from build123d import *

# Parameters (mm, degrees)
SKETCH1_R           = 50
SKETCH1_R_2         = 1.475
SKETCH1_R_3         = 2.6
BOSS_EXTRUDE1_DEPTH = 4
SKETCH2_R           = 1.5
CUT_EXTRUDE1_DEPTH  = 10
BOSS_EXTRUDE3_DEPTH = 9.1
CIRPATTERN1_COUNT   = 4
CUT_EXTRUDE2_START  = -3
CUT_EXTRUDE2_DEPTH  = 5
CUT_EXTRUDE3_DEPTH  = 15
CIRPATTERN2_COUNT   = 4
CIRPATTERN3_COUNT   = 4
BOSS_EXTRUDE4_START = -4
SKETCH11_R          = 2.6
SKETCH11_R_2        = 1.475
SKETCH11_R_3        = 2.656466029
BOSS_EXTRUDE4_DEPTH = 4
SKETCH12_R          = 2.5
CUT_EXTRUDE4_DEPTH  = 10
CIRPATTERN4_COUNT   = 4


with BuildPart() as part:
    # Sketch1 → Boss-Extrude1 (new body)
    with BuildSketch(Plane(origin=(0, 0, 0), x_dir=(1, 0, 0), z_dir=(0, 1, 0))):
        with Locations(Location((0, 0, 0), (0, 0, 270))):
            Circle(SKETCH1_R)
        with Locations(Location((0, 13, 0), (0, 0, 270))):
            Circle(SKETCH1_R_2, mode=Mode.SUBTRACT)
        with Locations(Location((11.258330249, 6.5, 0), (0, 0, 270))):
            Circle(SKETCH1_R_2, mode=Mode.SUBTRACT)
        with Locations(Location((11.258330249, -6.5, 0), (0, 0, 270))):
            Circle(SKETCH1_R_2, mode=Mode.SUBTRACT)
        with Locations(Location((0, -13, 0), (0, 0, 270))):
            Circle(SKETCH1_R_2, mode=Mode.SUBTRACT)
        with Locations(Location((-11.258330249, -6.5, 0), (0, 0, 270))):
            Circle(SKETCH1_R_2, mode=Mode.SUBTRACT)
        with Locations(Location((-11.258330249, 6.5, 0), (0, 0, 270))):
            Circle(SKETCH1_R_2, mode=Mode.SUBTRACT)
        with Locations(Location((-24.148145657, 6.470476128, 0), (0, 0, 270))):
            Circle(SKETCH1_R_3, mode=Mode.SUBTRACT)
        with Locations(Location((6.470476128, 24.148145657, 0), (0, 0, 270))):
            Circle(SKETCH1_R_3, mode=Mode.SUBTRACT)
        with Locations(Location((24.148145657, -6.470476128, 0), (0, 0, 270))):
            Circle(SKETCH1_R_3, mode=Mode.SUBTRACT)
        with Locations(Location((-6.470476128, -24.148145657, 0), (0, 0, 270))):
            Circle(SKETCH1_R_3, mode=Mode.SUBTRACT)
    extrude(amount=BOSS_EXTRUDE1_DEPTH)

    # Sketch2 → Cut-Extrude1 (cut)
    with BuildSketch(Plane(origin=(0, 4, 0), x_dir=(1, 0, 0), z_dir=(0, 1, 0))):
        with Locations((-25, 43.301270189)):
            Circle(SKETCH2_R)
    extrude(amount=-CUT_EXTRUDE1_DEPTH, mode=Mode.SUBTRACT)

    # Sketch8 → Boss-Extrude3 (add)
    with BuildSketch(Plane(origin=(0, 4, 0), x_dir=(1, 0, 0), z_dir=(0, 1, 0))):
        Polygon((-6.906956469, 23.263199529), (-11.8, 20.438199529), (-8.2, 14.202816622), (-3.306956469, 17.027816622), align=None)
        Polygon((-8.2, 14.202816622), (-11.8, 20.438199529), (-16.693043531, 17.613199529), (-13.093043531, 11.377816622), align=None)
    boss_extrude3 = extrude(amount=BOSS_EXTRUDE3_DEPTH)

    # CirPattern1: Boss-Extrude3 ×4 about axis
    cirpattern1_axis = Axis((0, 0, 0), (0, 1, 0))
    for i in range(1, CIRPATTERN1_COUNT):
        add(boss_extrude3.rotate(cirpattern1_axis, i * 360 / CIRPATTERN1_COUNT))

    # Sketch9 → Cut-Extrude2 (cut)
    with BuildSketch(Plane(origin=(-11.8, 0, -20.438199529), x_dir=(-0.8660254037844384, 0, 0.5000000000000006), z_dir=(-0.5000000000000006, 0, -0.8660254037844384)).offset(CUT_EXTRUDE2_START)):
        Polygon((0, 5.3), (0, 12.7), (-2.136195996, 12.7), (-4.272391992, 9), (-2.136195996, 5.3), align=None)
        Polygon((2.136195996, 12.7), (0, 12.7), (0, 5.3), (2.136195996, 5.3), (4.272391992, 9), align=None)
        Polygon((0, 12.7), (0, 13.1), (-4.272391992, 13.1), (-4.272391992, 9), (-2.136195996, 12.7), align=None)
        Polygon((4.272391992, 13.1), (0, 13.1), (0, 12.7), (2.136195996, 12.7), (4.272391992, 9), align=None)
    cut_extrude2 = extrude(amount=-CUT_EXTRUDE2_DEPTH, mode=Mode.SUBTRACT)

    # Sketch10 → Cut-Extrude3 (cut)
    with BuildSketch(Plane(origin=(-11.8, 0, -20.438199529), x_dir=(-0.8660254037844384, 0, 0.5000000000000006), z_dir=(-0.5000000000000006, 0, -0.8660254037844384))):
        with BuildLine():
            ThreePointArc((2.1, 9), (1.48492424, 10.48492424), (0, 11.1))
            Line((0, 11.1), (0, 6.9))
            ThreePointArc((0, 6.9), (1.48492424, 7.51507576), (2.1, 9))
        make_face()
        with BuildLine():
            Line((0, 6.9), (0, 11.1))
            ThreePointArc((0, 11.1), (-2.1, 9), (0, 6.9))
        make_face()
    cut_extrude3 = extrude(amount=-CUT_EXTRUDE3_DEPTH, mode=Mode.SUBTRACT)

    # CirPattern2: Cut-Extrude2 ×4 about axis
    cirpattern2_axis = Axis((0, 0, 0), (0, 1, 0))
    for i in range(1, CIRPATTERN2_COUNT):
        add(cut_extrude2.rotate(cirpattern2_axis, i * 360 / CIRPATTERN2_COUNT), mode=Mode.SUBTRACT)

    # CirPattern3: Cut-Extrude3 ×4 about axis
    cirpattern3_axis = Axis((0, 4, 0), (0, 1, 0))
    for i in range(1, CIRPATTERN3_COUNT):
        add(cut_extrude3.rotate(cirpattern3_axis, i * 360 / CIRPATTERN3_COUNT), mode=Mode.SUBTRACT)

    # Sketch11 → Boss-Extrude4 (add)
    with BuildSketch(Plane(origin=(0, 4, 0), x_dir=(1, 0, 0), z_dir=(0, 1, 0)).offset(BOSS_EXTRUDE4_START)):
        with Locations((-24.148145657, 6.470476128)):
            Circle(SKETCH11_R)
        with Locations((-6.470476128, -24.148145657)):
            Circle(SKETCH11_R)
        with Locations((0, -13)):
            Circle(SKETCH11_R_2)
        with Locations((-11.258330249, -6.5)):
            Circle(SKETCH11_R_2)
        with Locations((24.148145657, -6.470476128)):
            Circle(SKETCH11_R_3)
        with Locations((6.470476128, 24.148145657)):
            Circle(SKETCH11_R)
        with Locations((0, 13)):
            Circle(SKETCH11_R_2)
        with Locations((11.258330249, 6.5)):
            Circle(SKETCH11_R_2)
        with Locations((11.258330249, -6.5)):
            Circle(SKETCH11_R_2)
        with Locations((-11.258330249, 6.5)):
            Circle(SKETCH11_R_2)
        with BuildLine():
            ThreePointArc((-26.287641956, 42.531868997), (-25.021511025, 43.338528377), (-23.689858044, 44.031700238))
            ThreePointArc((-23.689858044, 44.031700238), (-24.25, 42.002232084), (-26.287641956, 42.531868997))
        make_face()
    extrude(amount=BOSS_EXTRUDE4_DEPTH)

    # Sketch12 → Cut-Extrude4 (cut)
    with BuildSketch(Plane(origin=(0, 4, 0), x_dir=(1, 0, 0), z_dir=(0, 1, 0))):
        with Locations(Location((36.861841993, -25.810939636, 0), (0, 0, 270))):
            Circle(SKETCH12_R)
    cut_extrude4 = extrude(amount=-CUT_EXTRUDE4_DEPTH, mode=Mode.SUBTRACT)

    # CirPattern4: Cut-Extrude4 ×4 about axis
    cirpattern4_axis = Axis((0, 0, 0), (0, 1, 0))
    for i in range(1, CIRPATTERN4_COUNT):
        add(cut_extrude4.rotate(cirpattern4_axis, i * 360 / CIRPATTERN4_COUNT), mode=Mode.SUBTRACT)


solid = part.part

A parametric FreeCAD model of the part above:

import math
import FreeCAD as App
import Part
import Sketcher
from FreeCAD import Vector
Q = App.Units.Quantity

doc = App.newDocument("Part")
body = doc.addObject("PartDesign::Body", "Body")

sketch1 = doc.addObject("Sketcher::SketchObject", "Sketch")
body.addObject(sketch1)
sketch1.AttachmentSupport = (doc.XZ_Plane, [""])
sketch1.MapMode = "FlatFace"
sketch1.addGeometry([
    Part.Circle(Vector(0, 0, 0), Vector(0, 0, 1), 50),
    Part.Circle(Vector(-24.148146, -6.470476, 0), Vector(0, 0, 1), 2.6),
    Part.Circle(Vector(-11.25833, -6.5, 0), Vector(0, 0, 1), 1.475),
    Part.Circle(Vector(0, -13, 0), Vector(0, 0, 1), 1.475),
    Part.Circle(Vector(-11.25833, 6.5, 0), Vector(0, 0, 1), 1.475),
    Part.Circle(Vector(-6.470476, 24.148146, 0), Vector(0, 0, 1), 2.6),
    Part.Circle(Vector(6.470476, -24.148146, 0), Vector(0, 0, 1), 2.6),
    Part.Circle(Vector(11.25833, -6.5, 0), Vector(0, 0, 1), 1.475),
    Part.Circle(Vector(0, 13, 0), Vector(0, 0, 1), 1.475),
    Part.Circle(Vector(11.25833, 6.5, 0), Vector(0, 0, 1), 1.475),
    Part.Circle(Vector(24.148146, 6.470476, 0), Vector(0, 0, 1), 2.6),
], False)
sketch1.addConstraint([
    Sketcher.Constraint("Coincident", 0, 3, -1, 1),
    Sketcher.Constraint("Equal", 2, 3),
    Sketcher.Constraint("Equal", 3, 4),
    Sketcher.Constraint("Equal", 1, 5),
    Sketcher.Constraint("Equal", 5, 6),
    Sketcher.Constraint("Equal", 4, 7),
    Sketcher.Constraint("Equal", 7, 8),
    Sketcher.Constraint("Equal", 8, 9),
    Sketcher.Constraint("Equal", 6, 10),
    Sketcher.Constraint("Symmetric", 5, 3, 6, 3, -1, 1),
    Sketcher.Constraint("Symmetric", 4, 3, 7, 3, -1, 1),
    Sketcher.Constraint("Symmetric", 3, 3, 8, 3, -1, 1),
    Sketcher.Constraint("Symmetric", 2, 3, 9, 3, -1, 1),
    Sketcher.Constraint("Symmetric", 1, 3, 10, 3, -1, 1),
    Sketcher.Constraint("Symmetric", 2, 3, 7, 3, -2),
    Sketcher.Constraint("PointOnObject", 3, 3, -2),
    Sketcher.Constraint("Diameter", 0, 100.0),
    Sketcher.Constraint("Diameter", 1, 5.2),
    Sketcher.Constraint("Diameter", 2, 2.95),
    Sketcher.Constraint("DistanceY", 3, 3, -1, 1, 13.0),
    Sketcher.Constraint("DistanceY", 2, 3, 4, 3, 13.0),
    Sketcher.Constraint("DistanceX", 2, 3, -1, 1, 11.25833),
    Sketcher.Constraint("DistanceX", 1, 3, 5, 3, 17.67767),
    Sketcher.Constraint("DistanceY", 1, 3, 5, 3, 30.618622),
    Sketcher.Constraint("DistanceX", 1, 3, 6, 3, 30.618622),
    Sketcher.Constraint("DistanceY", 6, 3, 1, 3, 17.67767),
])
pad1 = doc.addObject("PartDesign::Pad", "Pad")
body.addObject(pad1)
pad1.Profile = sketch1
pad1.Length = 4
pad1.Reversed = True

sketch2 = doc.addObject("Sketcher::SketchObject", "Sketch001")
body.addObject(sketch2)
sketch2.AttachmentSupport = (doc.XZ_Plane, [""])
sketch2.MapMode = "FlatFace"
sketch2.AttachmentOffset = App.Placement(Vector(0, 0, -4), App.Rotation())
sketch2.addGeometry(Part.Circle(Vector(-25, -43.30127, 0), Vector(0, 0, 1), 1.5), False)
sketch2.addConstraint([
    Sketcher.Constraint("Diameter", 0, 3.0),
    Sketcher.Constraint("DistanceX", 0, 3, -1, 1, 25.0),
    Sketcher.Constraint("DistanceY", 0, 3, -1, 1, 43.30127),
])
pocket1 = doc.addObject("PartDesign::Pocket", "Pocket")
body.addObject(pocket1)
pocket1.Profile = sketch2
pocket1.Length = 10
pocket1.Reversed = True

sketch3 = doc.addObject("Sketcher::SketchObject", "Sketch002")
body.addObject(sketch3)
sketch3.AttachmentSupport = (doc.XZ_Plane, [""])
sketch3.MapMode = "FlatFace"
sketch3.AttachmentOffset = App.Placement(Vector(0, 0, -4), App.Rotation())
sketch3.addGeometry([
    Part.LineSegment(Vector(-6.906956, -23.2632, 0), Vector(-16.693044, -17.6132, 0)),
    Part.LineSegment(Vector(-16.693044, -17.6132, 0), Vector(-13.093044, -11.377817, 0)),
    Part.LineSegment(Vector(-13.093044, -11.377817, 0), Vector(-3.306956, -17.027817, 0)),
    Part.LineSegment(Vector(-3.306956, -17.027817, 0), Vector(-6.906956, -23.2632, 0)),
], False)
sketch3.addConstraint([
    Sketcher.Constraint("Coincident", 0, 2, 1, 1),
    Sketcher.Constraint("Coincident", 1, 2, 2, 1),
    Sketcher.Constraint("Coincident", 2, 2, 3, 1),
    Sketcher.Constraint("Coincident", 3, 2, 0, 1),
    Sketcher.Constraint("Perpendicular", 0, 1),
    Sketcher.Constraint("Perpendicular", 1, 2),
    Sketcher.Constraint("Perpendicular", 2, 3),
    Sketcher.Constraint("Angle", 0, Q("150 deg")),
    Sketcher.Constraint("Distance", 0, 11.3),
    Sketcher.Constraint("Distance", 1, 7.2),
    Sketcher.Constraint("DistanceY", 0, 2, -1, 1, 17.6132),
    Sketcher.Constraint("DistanceX", 0, 2, -1, 1, 16.693044),
])
pad2 = doc.addObject("PartDesign::Pad", "Pad001")
body.addObject(pad2)
pad2.Profile = sketch3
pad2.Length = 9.1
pad2.Reversed = True
doc.recompute()

polarpattern = doc.addObject("PartDesign::PolarPattern", "PolarPattern")
body.addObject(polarpattern)
polarpattern.Originals = [pad2]
polarpattern.Axis = (doc.Y_Axis, [""])
polarpattern.Angle = 360
polarpattern.Occurrences = 4
body.Tip = polarpattern

sketch4 = doc.addObject("Sketcher::SketchObject", "Sketch003")
body.addObject(sketch4)
sketch4.Placement = App.Placement(Vector(-10.3, 0, -17.840123), App.Rotation(Vector(-0.866025404, 0, 0.5), Vector(0, 1, 0), Vector(-0.5, 0, -0.866025404), "ZXY"))
sketch4.addGeometry([
    Part.LineSegment(Vector(-4.272392, 9, 0), Vector(-2.136196, 5.3, 0)),
    Part.LineSegment(Vector(-2.136196, 5.3, 0), Vector(2.136196, 5.3, 0)),
    Part.LineSegment(Vector(2.136196, 5.3, 0), Vector(4.272392, 9, 0)),
    Part.LineSegment(Vector(4.272392, 9, 0), Vector(4.272392, 13.1, 0)),
    Part.LineSegment(Vector(4.272392, 13.1, 0), Vector(-4.272392, 13.1, 0)),
    Part.LineSegment(Vector(-4.272392, 13.1, 0), Vector(-4.272392, 9, 0)),
], False)
sketch4.addConstraint([
    Sketcher.Constraint("Coincident", 0, 2, 1, 1),
    Sketcher.Constraint("Coincident", 1, 2, 2, 1),
    Sketcher.Constraint("Coincident", 2, 2, 3, 1),
    Sketcher.Constraint("Coincident", 3, 2, 4, 1),
    Sketcher.Constraint("Coincident", 4, 2, 5, 1),
    Sketcher.Constraint("Coincident", 5, 2, 0, 1),
    Sketcher.Constraint("Horizontal", 1),
    Sketcher.Constraint("Vertical", 3),
    Sketcher.Constraint("Horizontal", 4),
    Sketcher.Constraint("Vertical", 5),
    Sketcher.Constraint("Symmetric", 2, 2, 5, 2, -2),
    Sketcher.Constraint("Equal", 0, 2),
    Sketcher.Constraint("Angle", 0, Q("-60 deg")),
    Sketcher.Constraint("DistanceY", 3, 1, 3, 2, 4.1),
    Sketcher.Constraint("DistanceY", -1, 1, 2, 2, 9.0),
    Sketcher.Constraint("DistanceY", -1, 1, 0, 2, 5.3),
    Sketcher.Constraint("DistanceX", 1, 1, 1, 2, 4.272392),
])
pocket2 = doc.addObject("PartDesign::Pocket", "Pocket001")
body.addObject(pocket2)
pocket2.Profile = sketch4
pocket2.Length = 5

sketch5 = doc.addObject("Sketcher::SketchObject", "Sketch004")
body.addObject(sketch5)
sketch5.Placement = App.Placement(Vector(-11.8, 0, -20.4382), App.Rotation(Vector(-0.866025404, 0, 0.5), Vector(0, 1, 0), Vector(-0.5, 0, -0.866025404), "ZXY"))
sketch5.addGeometry([
    Part.ArcOfCircle(Part.Circle(Vector(0, 9, 0), Vector(0, 0, 1), 2.1), math.radians(0), math.radians(90)),
    Part.ArcOfCircle(Part.Circle(Vector(0, 9, 0), Vector(0, 0, 1), 2.1), math.radians(90), math.radians(270)),
    Part.ArcOfCircle(Part.Circle(Vector(0, 9, 0), Vector(0, 0, 1), 2.1), math.radians(-90), math.radians(0)),
], False)
sketch5.addConstraint([
    Sketcher.Constraint("Tangent", 0, 2, 1, 1),
    Sketcher.Constraint("Tangent", 1, 2, 2, 1),
    Sketcher.Constraint("Tangent", 2, 2, 0, 1),
    Sketcher.Constraint("PointOnObject", 0, 3, -2),
    Sketcher.Constraint("PointOnObject", 0, 2, -2),
    Sketcher.Constraint("PointOnObject", 1, 2, -2),
    Sketcher.Constraint("Horizontal", 1, 3, 2, 2),
    Sketcher.Constraint("Radius", 0, 2.1),
    Sketcher.Constraint("DistanceY", -1, 1, 0, 3, 9.0),
])
pocket3 = doc.addObject("PartDesign::Pocket", "Pocket002")
body.addObject(pocket3)
pocket3.Profile = sketch5
pocket3.Length = 15
doc.recompute()

polarpattern2 = doc.addObject("PartDesign::PolarPattern", "PolarPattern001")
body.addObject(polarpattern2)
polarpattern2.Originals = [pocket2]
polarpattern2.Axis = (doc.Y_Axis, [""])
polarpattern2.Angle = 360
polarpattern2.Occurrences = 4
body.Tip = polarpattern2
doc.recompute()

polarpattern3 = doc.addObject("PartDesign::PolarPattern", "PolarPattern002")
body.addObject(polarpattern3)
polarpattern3.Originals = [pocket3]
polarpattern3.Axis = (doc.Y_Axis, [""])
polarpattern3.Angle = 360
polarpattern3.Occurrences = 4
body.Tip = polarpattern3

sketch6 = doc.addObject("Sketcher::SketchObject", "Sketch005")
body.addObject(sketch6)
sketch6.AttachmentSupport = (doc.XZ_Plane, [""])
sketch6.MapMode = "FlatFace"
sketch6.addGeometry([
    Part.Circle(Vector(-24.148146, -6.470476, 0), Vector(0, 0, 1), 2.6),
    Part.Circle(Vector(-6.470476, 24.148146, 0), Vector(0, 0, 1), 2.6),
    Part.Circle(Vector(0, 13, 0), Vector(0, 0, 1), 1.475),
    Part.Circle(Vector(-11.25833, 6.5, 0), Vector(0, 0, 1), 1.475),
    Part.Circle(Vector(24.148146, 6.470476, 0), Vector(0, 0, 1), 2.656466),
    Part.Circle(Vector(6.470476, -24.148146, 0), Vector(0, 0, 1), 2.6),
    Part.Circle(Vector(0, -13, 0), Vector(0, 0, 1), 1.475),
    Part.Circle(Vector(11.25833, -6.5, 0), Vector(0, 0, 1), 1.475),
    Part.Circle(Vector(11.25833, 6.5, 0), Vector(0, 0, 1), 1.475),
    Part.Circle(Vector(-11.25833, -6.5, 0), Vector(0, 0, 1), 1.475),
    Part.ArcOfCircle(Part.Circle(Vector(-16.422166, -28.444026, 0), Vector(0, 0, 1), 17.19869), math.radians(-125.002898), math.radians(-114.997102)),
    Part.ArcOfCircle(Part.Circle(Vector(-25, -43.30127, 0), Vector(0, 0, 1), 1.5), math.radians(-29.140531), math.radians(149.140531)),
], False)
sketch6.addConstraint([
    Sketcher.Constraint("Coincident", 10, 1, 11, 2),
    Sketcher.Constraint("Coincident", 11, 1, 10, 2),
    Sketcher.Constraint("Equal", 0, 1),
    Sketcher.Constraint("Equal", 2, 3),
    Sketcher.Constraint("Equal", 1, 5),
    Sketcher.Constraint("Equal", 3, 6),
    Sketcher.Constraint("Equal", 6, 7),
    Sketcher.Constraint("Equal", 7, 8),
    Sketcher.Constraint("Equal", 8, 9),
    Sketcher.Constraint("Symmetric", 0, 3, 4, 3, -1, 1),
    Sketcher.Constraint("Symmetric", 1, 3, 5, 3, -1, 1),
    Sketcher.Constraint("Symmetric", 2, 3, 6, 3, -1, 1),
    Sketcher.Constraint("Symmetric", 3, 3, 7, 3, -1, 1),
    Sketcher.Constraint("Symmetric", 8, 3, 9, 3, -1, 1),
    Sketcher.Constraint("Symmetric", 3, 3, 8, 3, -2),
    Sketcher.Constraint("PointOnObject", 2, 3, -2),
    Sketcher.Constraint("Diameter", 0, 5.2),
    Sketcher.Constraint("Radius", 11, 1.5),
    Sketcher.Constraint("Diameter", 2, 2.95),
    Sketcher.Constraint("DistanceY", -1, 1, 2, 3, 13.0),
    Sketcher.Constraint("DistanceX", 11, 3, -1, 1, 25.0),
    Sketcher.Constraint("DistanceY", 7, 3, 3, 3, 13.0),
    Sketcher.Constraint("Radius", 10, 17.19869),
    Sketcher.Constraint("Diameter", 4, 5.312932),
    Sketcher.Constraint("DistanceY", 11, 1, -1, 1, 44.0317),
    Sketcher.Constraint("DistanceY", 11, 3, 10, 1, 0.769401),
    Sketcher.Constraint("DistanceX", 3, 3, -1, 1, 11.25833),
    Sketcher.Constraint("DistanceY", 11, 3, -1, 1, 43.30127),
    Sketcher.Constraint("DistanceX", 0, 3, 1, 3, 17.67767),
    Sketcher.Constraint("DistanceY", 0, 3, 1, 3, 30.618622),
    Sketcher.Constraint("DistanceX", 1, 3, 4, 3, 30.618622),
    Sketcher.Constraint("DistanceY", 4, 3, 1, 3, 17.67767),
])
pad3 = doc.addObject("PartDesign::Pad", "Pad002")
body.addObject(pad3)
pad3.Profile = sketch6
pad3.Length = 4
pad3.Reversed = True

sketch7 = doc.addObject("Sketcher::SketchObject", "Sketch006")
body.addObject(sketch7)
sketch7.AttachmentSupport = (doc.XZ_Plane, [""])
sketch7.MapMode = "FlatFace"
sketch7.AttachmentOffset = App.Placement(Vector(0, 0, -4), App.Rotation())
sketch7.addGeometry(Part.Circle(Vector(36.861842, 25.81094, 0), Vector(0, 0, 1), 2.5), False)
sketch7.addConstraint([
    Sketcher.Constraint("Diameter", 0, 5.0),
    Sketcher.Constraint("DistanceX", -1, 1, 0, 3, 36.861842),
    Sketcher.Constraint("DistanceY", -1, 1, 0, 3, 25.81094),
])
pocket4 = doc.addObject("PartDesign::Pocket", "Pocket003")
body.addObject(pocket4)
pocket4.Profile = sketch7
pocket4.Length = 10
pocket4.Reversed = True
doc.recompute()

polarpattern4 = doc.addObject("PartDesign::PolarPattern", "PolarPattern003")
body.addObject(polarpattern4)
polarpattern4.Originals = [pocket4]
polarpattern4.Axis = (doc.Y_Axis, [""])
polarpattern4.Angle = 360
polarpattern4.Occurrences = 4
body.Tip = polarpattern4

doc.recompute()
